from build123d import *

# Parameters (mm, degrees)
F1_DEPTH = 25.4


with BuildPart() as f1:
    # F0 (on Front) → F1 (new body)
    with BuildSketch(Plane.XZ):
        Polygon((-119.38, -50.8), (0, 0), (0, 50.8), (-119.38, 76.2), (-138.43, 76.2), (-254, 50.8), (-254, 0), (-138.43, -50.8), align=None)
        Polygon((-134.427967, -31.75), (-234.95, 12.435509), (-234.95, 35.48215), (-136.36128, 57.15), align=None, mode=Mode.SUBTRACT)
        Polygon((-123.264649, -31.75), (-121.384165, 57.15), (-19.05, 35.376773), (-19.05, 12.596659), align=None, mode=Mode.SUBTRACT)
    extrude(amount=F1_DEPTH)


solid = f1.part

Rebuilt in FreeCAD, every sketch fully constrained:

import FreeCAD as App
import Part
import Sketcher
Q = App.Units.Quantity


def add_polygon(sketch, points):
    """Adds a closed chain of lines whose ends are joined by coincident constraints."""
    first, n = sketch.GeometryCount, len(points)
    for a, b in zip(points, points[1:] + points[:1]):
        sketch.addGeometry(Part.LineSegment(App.Vector(*a, 0), App.Vector(*b, 0)), False)
    for i in range(n):
        sketch.addConstraint(Sketcher.Constraint("Coincident", first + i, 2, first + (i + 1) % n, 1))

doc = App.newDocument("Part")
body = doc.addObject("PartDesign::Body", "Body")

# Sketch on XZ plane
sketch1 = body.newObject("Sketcher::SketchObject", "Sketch")
sketch1.AttachmentSupport = (doc.getObject("XZ_Plane"), [""])
sketch1.MapMode = "FlatFace"
add_polygon(sketch1, [(-119, -51), (0, 0), (0, 51), (-119, 76), (-138, 76), (-254, 51), (-254, 0), (-138, -51)])  # lines 0-7
add_polygon(sketch1, [(-136, 57), (-134, -32), (-235, 12), (-235, 35)])  # lines 8-11
add_polygon(sketch1, [(-19, 13), (-123, -32), (-121, 57), (-19, 35)])  # lines 12-15
sketch1.addConstraint([
    Sketcher.Constraint("Vertical", 1),
    Sketcher.Constraint("Horizontal", 3),
    Sketcher.Constraint("Vertical", 5),
    Sketcher.Constraint("Horizontal", 7),
    Sketcher.Constraint("Vertical", 10),
    Sketcher.Constraint("Vertical", 15),
    Sketcher.Constraint("Coincident", 0, 2, -1, 1),
    Sketcher.Constraint("PointOnObject", 5, 2, -1),
    Sketcher.Constraint("Parallel", 6, 9),
    Sketcher.Constraint("Parallel", 4, 11),
    Sketcher.Constraint("Parallel", 0, 12),
    Sketcher.Constraint("Parallel", 2, 14),
    Sketcher.Constraint("Horizontal", 1, 2, 4, 2),
    Sketcher.Constraint("Horizontal", 8, 2, 12, 2),
    Sketcher.Constraint("Horizontal", 11, 2, 13, 2),
    Sketcher.Constraint("Vertical", 3, 2, 6, 2),
    Sketcher.Constraint("Vertical", 2, 2, 7, 2),
    Sketcher.Constraint("DistanceY", 1, 1, 1, 2, Q("2 in")),
    Sketcher.Constraint("DistanceY", -1, 1, 2, 2, Q("3 in")),
    Sketcher.Constraint("DistanceX", 4, 2, -1, 1, Q("10 in")),
    Sketcher.Constraint("DistanceY", 6, 2, -1, 1, Q("2 in")),
    Sketcher.Constraint("DistanceX", 3, 2, 3, 1, Q("0.75 in")),
    Sketcher.Constraint("DistanceX", 2, 2, -1, 1, Q("4.7 in")),
    Sketcher.Constraint("DistanceX", 9, 2, 6, 2, Q("3.8 in")),
    Sketcher.Constraint("DistanceY", 8, 2, 11, 2, Q("3.5 in")),
    Sketcher.Constraint("DistanceY", 8, 2, -1, 1, Q("1.25 in")),
    Sketcher.Constraint("DistanceX", 14, 2, -1, 1, Q("0.75 in")),
    Sketcher.Constraint("DistanceY", 10, 1, 10, 2, Q("23.046641 mm")),
    Sketcher.Constraint("Distance", 8, Q("88.921019 mm")),
    Sketcher.Constraint("Distance", 14, Q("104.624829 mm")),
    Sketcher.Constraint("DistanceY", 15, 2, 15, 1, Q("22.780114 mm")),
])
pad1 = body.newObject("PartDesign::Pad", "Pad")
pad1.Profile = sketch1
pad1.Length = Q("1 in")

doc.recompute()
